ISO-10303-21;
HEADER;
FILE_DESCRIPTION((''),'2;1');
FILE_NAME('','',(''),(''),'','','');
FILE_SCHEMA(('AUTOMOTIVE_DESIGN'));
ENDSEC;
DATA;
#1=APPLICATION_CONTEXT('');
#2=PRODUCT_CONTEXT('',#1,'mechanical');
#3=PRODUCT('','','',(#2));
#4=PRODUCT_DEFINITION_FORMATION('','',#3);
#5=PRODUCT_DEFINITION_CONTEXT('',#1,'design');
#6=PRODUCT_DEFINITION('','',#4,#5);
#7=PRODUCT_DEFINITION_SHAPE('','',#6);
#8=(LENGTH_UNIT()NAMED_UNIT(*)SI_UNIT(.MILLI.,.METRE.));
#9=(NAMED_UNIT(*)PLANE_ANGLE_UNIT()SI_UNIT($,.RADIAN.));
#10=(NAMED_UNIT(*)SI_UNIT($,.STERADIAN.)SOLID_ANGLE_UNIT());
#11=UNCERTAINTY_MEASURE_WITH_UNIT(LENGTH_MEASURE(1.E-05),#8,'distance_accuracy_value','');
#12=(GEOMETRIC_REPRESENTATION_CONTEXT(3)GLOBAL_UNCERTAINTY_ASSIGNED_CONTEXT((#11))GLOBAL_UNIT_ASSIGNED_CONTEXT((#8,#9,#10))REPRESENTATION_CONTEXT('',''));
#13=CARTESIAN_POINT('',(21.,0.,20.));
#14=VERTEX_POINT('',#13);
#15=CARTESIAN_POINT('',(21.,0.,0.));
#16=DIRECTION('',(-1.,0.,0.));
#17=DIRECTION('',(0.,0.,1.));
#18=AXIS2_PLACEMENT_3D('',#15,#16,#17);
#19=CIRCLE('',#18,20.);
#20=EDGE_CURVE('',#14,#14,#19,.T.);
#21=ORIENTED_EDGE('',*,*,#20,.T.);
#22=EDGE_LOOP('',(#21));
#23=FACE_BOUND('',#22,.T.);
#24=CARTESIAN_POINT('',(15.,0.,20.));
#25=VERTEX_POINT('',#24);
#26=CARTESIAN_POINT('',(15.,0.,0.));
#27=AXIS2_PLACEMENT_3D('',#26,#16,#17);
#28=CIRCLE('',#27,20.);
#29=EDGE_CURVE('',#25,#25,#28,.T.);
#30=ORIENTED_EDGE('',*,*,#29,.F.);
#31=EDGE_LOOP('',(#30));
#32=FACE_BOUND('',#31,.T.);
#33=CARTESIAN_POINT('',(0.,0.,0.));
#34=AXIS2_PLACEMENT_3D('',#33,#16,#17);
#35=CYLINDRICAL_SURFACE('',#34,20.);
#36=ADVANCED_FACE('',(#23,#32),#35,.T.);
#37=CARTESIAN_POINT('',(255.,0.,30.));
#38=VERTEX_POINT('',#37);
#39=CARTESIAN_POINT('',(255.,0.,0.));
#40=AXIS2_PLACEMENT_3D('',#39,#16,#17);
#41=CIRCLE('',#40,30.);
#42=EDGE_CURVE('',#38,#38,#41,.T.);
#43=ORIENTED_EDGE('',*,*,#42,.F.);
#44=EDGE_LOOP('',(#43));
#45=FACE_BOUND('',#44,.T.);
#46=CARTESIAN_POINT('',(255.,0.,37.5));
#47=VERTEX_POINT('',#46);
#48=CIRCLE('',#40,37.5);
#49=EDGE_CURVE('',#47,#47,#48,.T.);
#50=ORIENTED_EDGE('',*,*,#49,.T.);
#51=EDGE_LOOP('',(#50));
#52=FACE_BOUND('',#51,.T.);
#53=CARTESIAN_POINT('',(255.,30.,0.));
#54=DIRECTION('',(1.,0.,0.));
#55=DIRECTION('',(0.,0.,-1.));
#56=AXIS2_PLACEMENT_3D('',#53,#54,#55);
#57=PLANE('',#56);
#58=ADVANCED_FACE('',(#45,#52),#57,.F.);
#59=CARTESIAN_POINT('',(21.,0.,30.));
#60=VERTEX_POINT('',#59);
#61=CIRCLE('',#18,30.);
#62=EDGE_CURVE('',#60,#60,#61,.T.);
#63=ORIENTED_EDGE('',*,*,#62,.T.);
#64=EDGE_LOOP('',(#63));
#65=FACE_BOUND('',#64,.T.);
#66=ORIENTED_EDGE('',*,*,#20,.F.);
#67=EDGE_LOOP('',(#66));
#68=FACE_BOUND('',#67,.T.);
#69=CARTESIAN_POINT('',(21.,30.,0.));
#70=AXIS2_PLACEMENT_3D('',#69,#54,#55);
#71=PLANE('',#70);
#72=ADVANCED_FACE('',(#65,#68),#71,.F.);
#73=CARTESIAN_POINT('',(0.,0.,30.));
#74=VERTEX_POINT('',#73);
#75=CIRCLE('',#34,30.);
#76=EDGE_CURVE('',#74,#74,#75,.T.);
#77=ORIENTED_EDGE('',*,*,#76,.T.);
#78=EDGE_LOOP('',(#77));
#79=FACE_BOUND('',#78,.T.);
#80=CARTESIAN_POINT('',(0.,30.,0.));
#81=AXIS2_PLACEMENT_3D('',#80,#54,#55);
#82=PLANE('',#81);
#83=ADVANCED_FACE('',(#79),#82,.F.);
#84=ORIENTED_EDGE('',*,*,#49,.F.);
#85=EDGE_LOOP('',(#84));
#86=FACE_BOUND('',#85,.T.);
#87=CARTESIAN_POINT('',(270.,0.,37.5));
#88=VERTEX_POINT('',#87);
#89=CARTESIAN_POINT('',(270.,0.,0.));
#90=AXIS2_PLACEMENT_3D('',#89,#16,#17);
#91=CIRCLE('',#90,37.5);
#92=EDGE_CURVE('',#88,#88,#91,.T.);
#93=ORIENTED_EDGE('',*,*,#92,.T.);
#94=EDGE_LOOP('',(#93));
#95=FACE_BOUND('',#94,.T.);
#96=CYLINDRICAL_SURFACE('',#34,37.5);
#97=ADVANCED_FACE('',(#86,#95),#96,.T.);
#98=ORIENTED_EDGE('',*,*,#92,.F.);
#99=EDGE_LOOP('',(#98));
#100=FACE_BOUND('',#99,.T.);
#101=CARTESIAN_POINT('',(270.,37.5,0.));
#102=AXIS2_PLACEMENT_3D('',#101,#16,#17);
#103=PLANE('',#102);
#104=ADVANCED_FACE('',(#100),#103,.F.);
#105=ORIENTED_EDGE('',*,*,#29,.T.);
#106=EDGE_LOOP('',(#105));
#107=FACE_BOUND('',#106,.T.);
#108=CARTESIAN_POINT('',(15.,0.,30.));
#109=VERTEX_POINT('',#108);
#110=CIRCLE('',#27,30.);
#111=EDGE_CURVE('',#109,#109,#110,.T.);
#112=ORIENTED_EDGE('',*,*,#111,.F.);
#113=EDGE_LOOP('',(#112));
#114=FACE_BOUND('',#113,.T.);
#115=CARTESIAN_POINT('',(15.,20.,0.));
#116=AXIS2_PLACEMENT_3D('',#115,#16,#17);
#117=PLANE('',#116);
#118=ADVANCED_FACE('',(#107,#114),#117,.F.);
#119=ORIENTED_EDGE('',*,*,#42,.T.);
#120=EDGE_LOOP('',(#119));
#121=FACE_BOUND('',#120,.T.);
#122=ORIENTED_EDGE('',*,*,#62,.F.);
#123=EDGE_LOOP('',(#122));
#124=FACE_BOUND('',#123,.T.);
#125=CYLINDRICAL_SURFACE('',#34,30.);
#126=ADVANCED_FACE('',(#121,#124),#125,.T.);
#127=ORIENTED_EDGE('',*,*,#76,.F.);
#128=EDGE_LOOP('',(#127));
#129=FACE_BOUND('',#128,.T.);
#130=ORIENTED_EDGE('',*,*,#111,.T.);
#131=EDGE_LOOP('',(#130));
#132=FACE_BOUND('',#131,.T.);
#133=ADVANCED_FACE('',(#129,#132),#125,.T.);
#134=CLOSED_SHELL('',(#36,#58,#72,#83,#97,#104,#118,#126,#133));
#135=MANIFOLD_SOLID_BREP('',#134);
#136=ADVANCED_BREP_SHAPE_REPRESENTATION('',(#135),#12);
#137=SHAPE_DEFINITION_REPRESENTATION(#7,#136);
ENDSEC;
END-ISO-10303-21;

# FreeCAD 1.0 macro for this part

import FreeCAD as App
import Part
import Sketcher


def add_polygon(sketch, points):
    """Adds a closed chain of lines whose ends are joined by coincident constraints."""
    first, n = sketch.GeometryCount, len(points)
    for a, b in zip(points, points[1:] + points[:1]):
        sketch.addGeometry(Part.LineSegment(App.Vector(*a, 0), App.Vector(*b, 0)), False)
    for i in range(n):
        sketch.addConstraint(Sketcher.Constraint("Coincident", first + i, 2, first + (i + 1) % n, 1))

doc = App.newDocument("Part")
body = doc.addObject("PartDesign::Body", "Body")

# Sketch on XY plane
sketch1 = doc.addObject("Sketcher::SketchObject", "Sketch")
body.addObject(sketch1)
sketch1.AttachmentSupport = (doc.XY_Plane, [""])
sketch1.MapMode = "FlatFace"
add_polygon(sketch1, [(0, 0), (270, 0), (270, 38), (255, 38), (255, 30), (21, 30), (21, 20), (15, 20), (15, 30), (0, 30)])  # lines 0-9
sketch1.addConstraint([
    Sketcher.Constraint("Horizontal", 0),
    Sketcher.Constraint("Vertical", 1),
    Sketcher.Constraint("Horizontal", 2),
    Sketcher.Constraint("Vertical", 3),
    Sketcher.Constraint("Horizontal", 4),
    Sketcher.Constraint("Vertical", 5),
    Sketcher.Constraint("Horizontal", 6),
    Sketcher.Constraint("Vertical", 7),
    Sketcher.Constraint("Horizontal", 8),
    Sketcher.Constraint("Vertical", 9),
    Sketcher.Constraint("Coincident", 9, 2, -1, 1),
    Sketcher.Constraint("Horizontal", 4, 2, 7, 2),
    Sketcher.Constraint("Equal", 2, 8),
    Sketcher.Constraint("DistanceX", 0, 1, 0, 2, 270.0),
    Sketcher.Constraint("DistanceX", 2, 2, 2, 1, 15.0),
    Sketcher.Constraint("DistanceX", 4, 2, 4, 1, 234.0),
    Sketcher.Constraint("DistanceY", 5, 2, 5, 1, 10.0),
    Sketcher.Constraint("DistanceY", 9, 2, 9, 1, 30.0),
    Sketcher.Constraint("DistanceY", 1, 1, 1, 2, 37.5),
])
revolution = doc.addObject("PartDesign::Revolution", "Revolution")
body.addObject(revolution)
revolution.Profile = sketch1
revolution.ReferenceAxis = (sketch1, ["H_Axis"])
revolution.Angle = 360

doc.recompute()
